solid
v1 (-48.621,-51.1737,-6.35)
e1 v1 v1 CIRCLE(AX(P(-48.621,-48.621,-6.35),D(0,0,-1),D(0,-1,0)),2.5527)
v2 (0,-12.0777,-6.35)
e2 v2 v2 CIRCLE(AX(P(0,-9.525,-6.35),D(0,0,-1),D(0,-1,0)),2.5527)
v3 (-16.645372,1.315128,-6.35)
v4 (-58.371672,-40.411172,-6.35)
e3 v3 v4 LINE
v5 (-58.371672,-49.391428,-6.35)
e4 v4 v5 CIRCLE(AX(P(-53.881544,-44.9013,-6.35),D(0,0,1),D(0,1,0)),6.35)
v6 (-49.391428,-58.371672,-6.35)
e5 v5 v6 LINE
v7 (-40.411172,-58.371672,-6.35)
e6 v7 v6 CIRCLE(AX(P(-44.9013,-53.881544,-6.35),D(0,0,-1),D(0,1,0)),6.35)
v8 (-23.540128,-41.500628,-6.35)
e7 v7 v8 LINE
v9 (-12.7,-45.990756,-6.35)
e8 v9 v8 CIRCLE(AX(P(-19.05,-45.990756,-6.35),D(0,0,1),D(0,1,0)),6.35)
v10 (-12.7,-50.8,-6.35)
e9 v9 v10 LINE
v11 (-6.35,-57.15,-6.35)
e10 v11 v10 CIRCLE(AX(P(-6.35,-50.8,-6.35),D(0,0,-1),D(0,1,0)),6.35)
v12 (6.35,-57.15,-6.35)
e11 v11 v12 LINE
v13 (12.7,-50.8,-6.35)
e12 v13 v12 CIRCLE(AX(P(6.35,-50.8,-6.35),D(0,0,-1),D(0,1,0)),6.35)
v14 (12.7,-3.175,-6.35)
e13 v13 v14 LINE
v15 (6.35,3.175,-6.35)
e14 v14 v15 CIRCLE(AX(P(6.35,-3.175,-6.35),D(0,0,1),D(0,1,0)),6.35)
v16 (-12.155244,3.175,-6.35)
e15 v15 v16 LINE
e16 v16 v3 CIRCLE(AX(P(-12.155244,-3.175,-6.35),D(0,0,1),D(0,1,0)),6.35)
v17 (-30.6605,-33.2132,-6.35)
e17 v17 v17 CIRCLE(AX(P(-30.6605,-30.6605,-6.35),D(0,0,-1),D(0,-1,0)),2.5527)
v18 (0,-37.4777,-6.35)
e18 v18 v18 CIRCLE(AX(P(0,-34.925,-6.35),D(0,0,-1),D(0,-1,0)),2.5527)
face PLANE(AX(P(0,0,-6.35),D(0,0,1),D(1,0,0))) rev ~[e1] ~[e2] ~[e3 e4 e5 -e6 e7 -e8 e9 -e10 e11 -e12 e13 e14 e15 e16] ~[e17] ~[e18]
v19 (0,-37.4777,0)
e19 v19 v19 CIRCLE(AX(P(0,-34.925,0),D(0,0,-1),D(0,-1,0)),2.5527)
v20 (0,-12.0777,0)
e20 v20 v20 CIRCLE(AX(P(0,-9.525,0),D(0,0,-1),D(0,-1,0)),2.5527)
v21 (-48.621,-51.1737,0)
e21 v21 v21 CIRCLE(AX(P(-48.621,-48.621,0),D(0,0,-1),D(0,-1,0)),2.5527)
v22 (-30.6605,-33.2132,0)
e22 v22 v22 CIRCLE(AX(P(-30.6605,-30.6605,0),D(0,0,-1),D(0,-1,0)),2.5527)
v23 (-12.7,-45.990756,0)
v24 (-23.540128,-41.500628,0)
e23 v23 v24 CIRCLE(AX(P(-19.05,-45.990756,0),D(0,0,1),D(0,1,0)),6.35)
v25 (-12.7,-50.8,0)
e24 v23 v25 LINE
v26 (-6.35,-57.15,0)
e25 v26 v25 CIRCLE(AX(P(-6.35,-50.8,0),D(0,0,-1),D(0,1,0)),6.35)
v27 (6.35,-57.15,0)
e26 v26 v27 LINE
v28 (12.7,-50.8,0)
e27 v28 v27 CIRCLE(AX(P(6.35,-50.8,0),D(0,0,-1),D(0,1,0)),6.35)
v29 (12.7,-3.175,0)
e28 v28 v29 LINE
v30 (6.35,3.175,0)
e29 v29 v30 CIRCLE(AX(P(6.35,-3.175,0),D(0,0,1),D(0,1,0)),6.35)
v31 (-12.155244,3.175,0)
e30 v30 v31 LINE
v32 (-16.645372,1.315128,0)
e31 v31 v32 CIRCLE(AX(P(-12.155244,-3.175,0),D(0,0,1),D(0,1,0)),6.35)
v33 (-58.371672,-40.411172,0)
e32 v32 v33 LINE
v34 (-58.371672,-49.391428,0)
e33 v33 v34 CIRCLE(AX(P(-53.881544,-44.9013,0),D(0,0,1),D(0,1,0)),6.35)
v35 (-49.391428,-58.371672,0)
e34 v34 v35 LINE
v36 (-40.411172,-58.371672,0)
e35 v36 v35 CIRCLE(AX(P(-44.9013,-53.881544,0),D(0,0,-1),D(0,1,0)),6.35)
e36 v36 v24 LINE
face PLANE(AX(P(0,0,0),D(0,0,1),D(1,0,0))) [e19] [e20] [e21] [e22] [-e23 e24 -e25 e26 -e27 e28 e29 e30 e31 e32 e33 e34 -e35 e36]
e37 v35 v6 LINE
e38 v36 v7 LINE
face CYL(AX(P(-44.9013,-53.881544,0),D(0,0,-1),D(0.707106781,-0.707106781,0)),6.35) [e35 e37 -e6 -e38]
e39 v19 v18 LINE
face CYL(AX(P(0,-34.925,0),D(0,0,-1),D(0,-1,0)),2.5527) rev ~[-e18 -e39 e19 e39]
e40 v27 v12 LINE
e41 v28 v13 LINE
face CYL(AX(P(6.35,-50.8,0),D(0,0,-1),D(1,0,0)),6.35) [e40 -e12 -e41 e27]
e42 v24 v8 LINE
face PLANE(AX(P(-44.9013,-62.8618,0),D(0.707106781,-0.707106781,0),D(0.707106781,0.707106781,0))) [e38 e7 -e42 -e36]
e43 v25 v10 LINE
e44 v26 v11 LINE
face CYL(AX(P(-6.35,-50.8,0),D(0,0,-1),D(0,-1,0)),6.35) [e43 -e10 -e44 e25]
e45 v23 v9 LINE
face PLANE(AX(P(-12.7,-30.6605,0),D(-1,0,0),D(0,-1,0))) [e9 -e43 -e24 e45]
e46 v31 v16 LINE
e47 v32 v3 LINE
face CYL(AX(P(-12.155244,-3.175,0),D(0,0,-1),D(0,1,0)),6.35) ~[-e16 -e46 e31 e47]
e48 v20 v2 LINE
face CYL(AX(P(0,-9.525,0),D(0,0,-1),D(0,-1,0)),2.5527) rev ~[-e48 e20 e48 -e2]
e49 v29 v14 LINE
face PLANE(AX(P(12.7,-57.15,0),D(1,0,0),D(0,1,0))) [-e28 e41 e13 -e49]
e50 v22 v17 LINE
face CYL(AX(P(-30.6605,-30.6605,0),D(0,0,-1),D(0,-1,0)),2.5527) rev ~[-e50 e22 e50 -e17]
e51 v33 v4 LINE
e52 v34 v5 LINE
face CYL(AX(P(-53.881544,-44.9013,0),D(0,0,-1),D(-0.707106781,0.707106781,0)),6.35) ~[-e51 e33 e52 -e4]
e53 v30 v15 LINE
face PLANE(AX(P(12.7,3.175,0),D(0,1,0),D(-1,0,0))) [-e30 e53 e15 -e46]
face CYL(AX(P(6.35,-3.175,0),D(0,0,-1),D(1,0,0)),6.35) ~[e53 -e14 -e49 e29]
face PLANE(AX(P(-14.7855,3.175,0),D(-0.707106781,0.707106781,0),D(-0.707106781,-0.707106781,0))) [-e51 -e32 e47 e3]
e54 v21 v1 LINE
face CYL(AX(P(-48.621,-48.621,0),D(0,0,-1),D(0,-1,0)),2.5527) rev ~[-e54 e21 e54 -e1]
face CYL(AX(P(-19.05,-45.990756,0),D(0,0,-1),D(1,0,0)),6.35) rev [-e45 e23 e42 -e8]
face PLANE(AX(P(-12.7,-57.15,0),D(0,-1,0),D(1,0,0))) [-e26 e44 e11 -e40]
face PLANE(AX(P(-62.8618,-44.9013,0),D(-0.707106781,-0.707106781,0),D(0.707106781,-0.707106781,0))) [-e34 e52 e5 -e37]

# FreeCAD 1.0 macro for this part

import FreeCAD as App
import Part
import Sketcher
Q = App.Units.Quantity


def edges_at(feature, points):
    """Names of the edges that pass closest to the given points."""
    edges = feature.Shape.Edges
    near = lambda p: min(range(len(edges)), key=lambda i: edges[i].distToShape(Part.Vertex(*p))[0])
    return sorted({f"Edge{near(p) + 1}" for p in points})

doc = App.newDocument("Part")
params = doc.addObject("Spreadsheet::Sheet", "Params")
for row, (alias, value) in enumerate([
    ("sketch1_width", "1 in"),
    ("sketch1_length", "1 in"),
    ("pad1_length", "0.25 in"),
    ("sketch2_diameter", "0.201 in"),
    ("hole_diameter", "0.201 in"),
    ("fillet_radius", "0.25 in"),
], start=1):
    params.set(f"A{row}", alias)
    params.set(f"B{row}", "=" + value)
    params.setAlias(f"B{row}", alias)

body = doc.addObject("PartDesign::Body", "Body")

# Sketch on XY plane
sketch1 = doc.addObject("Sketcher::SketchObject", "Sketch")
body.addObject(sketch1)
sketch1.AttachmentSupport = (doc.XY_Plane, [""])
sketch1.MapMode = "FlatFace"
sketch1.addGeometry(Part.LineSegment(App.Vector(13, -57, 0), App.Vector(13, 3, 0)), False)
sketch1.addGeometry(Part.LineSegment(App.Vector(13, 3, 0), App.Vector(-15, 3, 0)), False)
sketch1.addGeometry(Part.LineSegment(App.Vector(-15, 3, 0), App.Vector(-63, -45, 0)), False)
sketch1.addGeometry(Part.LineSegment(App.Vector(-63, -45, 0), App.Vector(-45, -63, 0)), False)
sketch1.addGeometry(Part.LineSegment(App.Vector(-45, -63, 0), App.Vector(-13, -31, 0)), False)
sketch1.addGeometry(Part.LineSegment(App.Vector(-13, -31, 0), App.Vector(-13, -57, 0)), False)
sketch1.addGeometry(Part.LineSegment(App.Vector(-13, -57, 0), App.Vector(13, -57, 0)), False)
sketch1.addConstraint(Sketcher.Constraint("Coincident", 0, 2, 1, 1))
sketch1.addConstraint(Sketcher.Constraint("Coincident", 1, 2, 2, 1))
sketch1.addConstraint(Sketcher.Constraint("Coincident", 2, 2, 3, 1))
sketch1.addConstraint(Sketcher.Constraint("Coincident", 3, 2, 4, 1))
sketch1.addConstraint(Sketcher.Constraint("Coincident", 4, 2, 5, 1))
sketch1.addConstraint(Sketcher.Constraint("Coincident", 5, 2, 6, 1))
sketch1.addConstraint(Sketcher.Constraint("Coincident", 6, 2, 0, 1))
sketch1.addConstraint(Sketcher.Constraint("Vertical", 0))
sketch1.addConstraint(Sketcher.Constraint("Horizontal", 1))
sketch1.addConstraint(Sketcher.Constraint("Vertical", 5))
sketch1.addConstraint(Sketcher.Constraint("Horizontal", 6))
sketch1.addConstraint(Sketcher.Constraint("Perpendicular", 2, 3))
sketch1.addConstraint(Sketcher.Constraint("Perpendicular", 3, 4))
sketch1.addConstraint(Sketcher.Constraint("DistanceX", 6, 1, 6, 2, Q("1 in")))
sketch1.addConstraint(Sketcher.Constraint("Distance", 3, Q("1 in")))
sketch1.addConstraint(Sketcher.Constraint("Angle", 3, Q("-45 deg")))
sketch1.addConstraint(Sketcher.Constraint("DistanceY", 5, 2, -1, 1, Q("2.25 in")))
sketch1.addConstraint(Sketcher.Constraint("DistanceY", -1, 1, 0, 2, Q("0.125 in")))
sketch1.addConstraint(Sketcher.Constraint("DistanceX", -1, 1, 0, 2, Q("0.5 in")))
sketch1.addConstraint(Sketcher.Constraint("DistanceX", 1, 2, 1, 1, Q("1.0821 in")))
sketch1.addConstraint(Sketcher.Constraint("Distance", 4, Q("1.7929 in")))
sketch1.setExpression("Constraints[13]", "Params.sketch1_width")
sketch1.setExpression("Constraints[14]", "Params.sketch1_length")
pad1 = doc.addObject("PartDesign::Pad", "Pad")
body.addObject(pad1)
pad1.Profile = sketch1
pad1.setExpression("Length", "Params.pad1_length")
pad1.Reversed = True

# Sketch on XY plane
sketch2 = doc.addObject("Sketcher::SketchObject", "Sketch001")
body.addObject(sketch2)
sketch2.AttachmentSupport = (doc.XY_Plane, [""])
sketch2.MapMode = "FlatFace"
sketch2.addGeometry(Part.Circle(App.Vector(-30.7, -30.7, 0), App.Vector(0, 0, 1), 2.6), False)
sketch2.addGeometry(Part.Circle(App.Vector(-48.6, -48.6, 0), App.Vector(0, 0, 1), 2.6), False)
sketch2.addGeometry(Part.Circle(App.Vector(0, -9.5, 0), App.Vector(0, 0, 1), 2.6), False)
sketch2.addGeometry(Part.Circle(App.Vector(0, -34.9, 0), App.Vector(0, 0, 1), 2.6), False)
sketch2.addConstraint(Sketcher.Constraint("Equal", 0, 1))
sketch2.addConstraint(Sketcher.Constraint("Equal", 1, 2))
sketch2.addConstraint(Sketcher.Constraint("Equal", 2, 3))
sketch2.addConstraint(Sketcher.Constraint("PointOnObject", 2, 3, -2))
sketch2.addConstraint(Sketcher.Constraint("PointOnObject", 3, 3, -2))
sketch2.addConstraint(Sketcher.Constraint("Diameter", 0, Q("0.201 in")))
sketch2.addConstraint(Sketcher.Constraint("DistanceY", 3, 3, 2, 3, Q("1 in")))
sketch2.addConstraint(Sketcher.Constraint("DistanceY", 2, 3, -1, 1, Q("0.375 in")))
sketch2.addConstraint(Sketcher.Constraint("DistanceX", 0, 3, -1, 1, Q("1.2071 in")))
sketch2.addConstraint(Sketcher.Constraint("DistanceY", 0, 3, -1, 1, Q("1.2071 in")))
sketch2.addConstraint(Sketcher.Constraint("DistanceX", 1, 3, 0, 3, Q("0.7071 in")))
sketch2.addConstraint(Sketcher.Constraint("DistanceY", 1, 3, 0, 3, Q("0.7071 in")))
sketch2.setExpression("Constraints[5]", "Params.sketch2_diameter")
doc.recompute()
hole = doc.addObject("PartDesign::Hole", "Hole")
body.addObject(hole)
hole.Profile = sketch2
hole.ThreadType = "None"
hole.setExpression("Diameter", "Params.hole_diameter")
hole.DepthType = "ThroughAll"
doc.recompute()

fillet = doc.addObject("PartDesign::Fillet", "Fillet")
body.addObject(fillet)
fillet.Base = (hole, edges_at(hole, [
    (12.7, 3.175, -3.175),
    (-14.786, 3.175, -3.175),
    (-62.862, -44.901, -3.175),
    (-44.901, -62.862, -3.175),
    (-12.7, -30.66, -3.175),
    (-12.7, -57.15, -3.175),
    (12.7, -57.15, -3.175),
]))
fillet.setExpression("Radius", "Params.fillet_radius")

doc.recompute()
